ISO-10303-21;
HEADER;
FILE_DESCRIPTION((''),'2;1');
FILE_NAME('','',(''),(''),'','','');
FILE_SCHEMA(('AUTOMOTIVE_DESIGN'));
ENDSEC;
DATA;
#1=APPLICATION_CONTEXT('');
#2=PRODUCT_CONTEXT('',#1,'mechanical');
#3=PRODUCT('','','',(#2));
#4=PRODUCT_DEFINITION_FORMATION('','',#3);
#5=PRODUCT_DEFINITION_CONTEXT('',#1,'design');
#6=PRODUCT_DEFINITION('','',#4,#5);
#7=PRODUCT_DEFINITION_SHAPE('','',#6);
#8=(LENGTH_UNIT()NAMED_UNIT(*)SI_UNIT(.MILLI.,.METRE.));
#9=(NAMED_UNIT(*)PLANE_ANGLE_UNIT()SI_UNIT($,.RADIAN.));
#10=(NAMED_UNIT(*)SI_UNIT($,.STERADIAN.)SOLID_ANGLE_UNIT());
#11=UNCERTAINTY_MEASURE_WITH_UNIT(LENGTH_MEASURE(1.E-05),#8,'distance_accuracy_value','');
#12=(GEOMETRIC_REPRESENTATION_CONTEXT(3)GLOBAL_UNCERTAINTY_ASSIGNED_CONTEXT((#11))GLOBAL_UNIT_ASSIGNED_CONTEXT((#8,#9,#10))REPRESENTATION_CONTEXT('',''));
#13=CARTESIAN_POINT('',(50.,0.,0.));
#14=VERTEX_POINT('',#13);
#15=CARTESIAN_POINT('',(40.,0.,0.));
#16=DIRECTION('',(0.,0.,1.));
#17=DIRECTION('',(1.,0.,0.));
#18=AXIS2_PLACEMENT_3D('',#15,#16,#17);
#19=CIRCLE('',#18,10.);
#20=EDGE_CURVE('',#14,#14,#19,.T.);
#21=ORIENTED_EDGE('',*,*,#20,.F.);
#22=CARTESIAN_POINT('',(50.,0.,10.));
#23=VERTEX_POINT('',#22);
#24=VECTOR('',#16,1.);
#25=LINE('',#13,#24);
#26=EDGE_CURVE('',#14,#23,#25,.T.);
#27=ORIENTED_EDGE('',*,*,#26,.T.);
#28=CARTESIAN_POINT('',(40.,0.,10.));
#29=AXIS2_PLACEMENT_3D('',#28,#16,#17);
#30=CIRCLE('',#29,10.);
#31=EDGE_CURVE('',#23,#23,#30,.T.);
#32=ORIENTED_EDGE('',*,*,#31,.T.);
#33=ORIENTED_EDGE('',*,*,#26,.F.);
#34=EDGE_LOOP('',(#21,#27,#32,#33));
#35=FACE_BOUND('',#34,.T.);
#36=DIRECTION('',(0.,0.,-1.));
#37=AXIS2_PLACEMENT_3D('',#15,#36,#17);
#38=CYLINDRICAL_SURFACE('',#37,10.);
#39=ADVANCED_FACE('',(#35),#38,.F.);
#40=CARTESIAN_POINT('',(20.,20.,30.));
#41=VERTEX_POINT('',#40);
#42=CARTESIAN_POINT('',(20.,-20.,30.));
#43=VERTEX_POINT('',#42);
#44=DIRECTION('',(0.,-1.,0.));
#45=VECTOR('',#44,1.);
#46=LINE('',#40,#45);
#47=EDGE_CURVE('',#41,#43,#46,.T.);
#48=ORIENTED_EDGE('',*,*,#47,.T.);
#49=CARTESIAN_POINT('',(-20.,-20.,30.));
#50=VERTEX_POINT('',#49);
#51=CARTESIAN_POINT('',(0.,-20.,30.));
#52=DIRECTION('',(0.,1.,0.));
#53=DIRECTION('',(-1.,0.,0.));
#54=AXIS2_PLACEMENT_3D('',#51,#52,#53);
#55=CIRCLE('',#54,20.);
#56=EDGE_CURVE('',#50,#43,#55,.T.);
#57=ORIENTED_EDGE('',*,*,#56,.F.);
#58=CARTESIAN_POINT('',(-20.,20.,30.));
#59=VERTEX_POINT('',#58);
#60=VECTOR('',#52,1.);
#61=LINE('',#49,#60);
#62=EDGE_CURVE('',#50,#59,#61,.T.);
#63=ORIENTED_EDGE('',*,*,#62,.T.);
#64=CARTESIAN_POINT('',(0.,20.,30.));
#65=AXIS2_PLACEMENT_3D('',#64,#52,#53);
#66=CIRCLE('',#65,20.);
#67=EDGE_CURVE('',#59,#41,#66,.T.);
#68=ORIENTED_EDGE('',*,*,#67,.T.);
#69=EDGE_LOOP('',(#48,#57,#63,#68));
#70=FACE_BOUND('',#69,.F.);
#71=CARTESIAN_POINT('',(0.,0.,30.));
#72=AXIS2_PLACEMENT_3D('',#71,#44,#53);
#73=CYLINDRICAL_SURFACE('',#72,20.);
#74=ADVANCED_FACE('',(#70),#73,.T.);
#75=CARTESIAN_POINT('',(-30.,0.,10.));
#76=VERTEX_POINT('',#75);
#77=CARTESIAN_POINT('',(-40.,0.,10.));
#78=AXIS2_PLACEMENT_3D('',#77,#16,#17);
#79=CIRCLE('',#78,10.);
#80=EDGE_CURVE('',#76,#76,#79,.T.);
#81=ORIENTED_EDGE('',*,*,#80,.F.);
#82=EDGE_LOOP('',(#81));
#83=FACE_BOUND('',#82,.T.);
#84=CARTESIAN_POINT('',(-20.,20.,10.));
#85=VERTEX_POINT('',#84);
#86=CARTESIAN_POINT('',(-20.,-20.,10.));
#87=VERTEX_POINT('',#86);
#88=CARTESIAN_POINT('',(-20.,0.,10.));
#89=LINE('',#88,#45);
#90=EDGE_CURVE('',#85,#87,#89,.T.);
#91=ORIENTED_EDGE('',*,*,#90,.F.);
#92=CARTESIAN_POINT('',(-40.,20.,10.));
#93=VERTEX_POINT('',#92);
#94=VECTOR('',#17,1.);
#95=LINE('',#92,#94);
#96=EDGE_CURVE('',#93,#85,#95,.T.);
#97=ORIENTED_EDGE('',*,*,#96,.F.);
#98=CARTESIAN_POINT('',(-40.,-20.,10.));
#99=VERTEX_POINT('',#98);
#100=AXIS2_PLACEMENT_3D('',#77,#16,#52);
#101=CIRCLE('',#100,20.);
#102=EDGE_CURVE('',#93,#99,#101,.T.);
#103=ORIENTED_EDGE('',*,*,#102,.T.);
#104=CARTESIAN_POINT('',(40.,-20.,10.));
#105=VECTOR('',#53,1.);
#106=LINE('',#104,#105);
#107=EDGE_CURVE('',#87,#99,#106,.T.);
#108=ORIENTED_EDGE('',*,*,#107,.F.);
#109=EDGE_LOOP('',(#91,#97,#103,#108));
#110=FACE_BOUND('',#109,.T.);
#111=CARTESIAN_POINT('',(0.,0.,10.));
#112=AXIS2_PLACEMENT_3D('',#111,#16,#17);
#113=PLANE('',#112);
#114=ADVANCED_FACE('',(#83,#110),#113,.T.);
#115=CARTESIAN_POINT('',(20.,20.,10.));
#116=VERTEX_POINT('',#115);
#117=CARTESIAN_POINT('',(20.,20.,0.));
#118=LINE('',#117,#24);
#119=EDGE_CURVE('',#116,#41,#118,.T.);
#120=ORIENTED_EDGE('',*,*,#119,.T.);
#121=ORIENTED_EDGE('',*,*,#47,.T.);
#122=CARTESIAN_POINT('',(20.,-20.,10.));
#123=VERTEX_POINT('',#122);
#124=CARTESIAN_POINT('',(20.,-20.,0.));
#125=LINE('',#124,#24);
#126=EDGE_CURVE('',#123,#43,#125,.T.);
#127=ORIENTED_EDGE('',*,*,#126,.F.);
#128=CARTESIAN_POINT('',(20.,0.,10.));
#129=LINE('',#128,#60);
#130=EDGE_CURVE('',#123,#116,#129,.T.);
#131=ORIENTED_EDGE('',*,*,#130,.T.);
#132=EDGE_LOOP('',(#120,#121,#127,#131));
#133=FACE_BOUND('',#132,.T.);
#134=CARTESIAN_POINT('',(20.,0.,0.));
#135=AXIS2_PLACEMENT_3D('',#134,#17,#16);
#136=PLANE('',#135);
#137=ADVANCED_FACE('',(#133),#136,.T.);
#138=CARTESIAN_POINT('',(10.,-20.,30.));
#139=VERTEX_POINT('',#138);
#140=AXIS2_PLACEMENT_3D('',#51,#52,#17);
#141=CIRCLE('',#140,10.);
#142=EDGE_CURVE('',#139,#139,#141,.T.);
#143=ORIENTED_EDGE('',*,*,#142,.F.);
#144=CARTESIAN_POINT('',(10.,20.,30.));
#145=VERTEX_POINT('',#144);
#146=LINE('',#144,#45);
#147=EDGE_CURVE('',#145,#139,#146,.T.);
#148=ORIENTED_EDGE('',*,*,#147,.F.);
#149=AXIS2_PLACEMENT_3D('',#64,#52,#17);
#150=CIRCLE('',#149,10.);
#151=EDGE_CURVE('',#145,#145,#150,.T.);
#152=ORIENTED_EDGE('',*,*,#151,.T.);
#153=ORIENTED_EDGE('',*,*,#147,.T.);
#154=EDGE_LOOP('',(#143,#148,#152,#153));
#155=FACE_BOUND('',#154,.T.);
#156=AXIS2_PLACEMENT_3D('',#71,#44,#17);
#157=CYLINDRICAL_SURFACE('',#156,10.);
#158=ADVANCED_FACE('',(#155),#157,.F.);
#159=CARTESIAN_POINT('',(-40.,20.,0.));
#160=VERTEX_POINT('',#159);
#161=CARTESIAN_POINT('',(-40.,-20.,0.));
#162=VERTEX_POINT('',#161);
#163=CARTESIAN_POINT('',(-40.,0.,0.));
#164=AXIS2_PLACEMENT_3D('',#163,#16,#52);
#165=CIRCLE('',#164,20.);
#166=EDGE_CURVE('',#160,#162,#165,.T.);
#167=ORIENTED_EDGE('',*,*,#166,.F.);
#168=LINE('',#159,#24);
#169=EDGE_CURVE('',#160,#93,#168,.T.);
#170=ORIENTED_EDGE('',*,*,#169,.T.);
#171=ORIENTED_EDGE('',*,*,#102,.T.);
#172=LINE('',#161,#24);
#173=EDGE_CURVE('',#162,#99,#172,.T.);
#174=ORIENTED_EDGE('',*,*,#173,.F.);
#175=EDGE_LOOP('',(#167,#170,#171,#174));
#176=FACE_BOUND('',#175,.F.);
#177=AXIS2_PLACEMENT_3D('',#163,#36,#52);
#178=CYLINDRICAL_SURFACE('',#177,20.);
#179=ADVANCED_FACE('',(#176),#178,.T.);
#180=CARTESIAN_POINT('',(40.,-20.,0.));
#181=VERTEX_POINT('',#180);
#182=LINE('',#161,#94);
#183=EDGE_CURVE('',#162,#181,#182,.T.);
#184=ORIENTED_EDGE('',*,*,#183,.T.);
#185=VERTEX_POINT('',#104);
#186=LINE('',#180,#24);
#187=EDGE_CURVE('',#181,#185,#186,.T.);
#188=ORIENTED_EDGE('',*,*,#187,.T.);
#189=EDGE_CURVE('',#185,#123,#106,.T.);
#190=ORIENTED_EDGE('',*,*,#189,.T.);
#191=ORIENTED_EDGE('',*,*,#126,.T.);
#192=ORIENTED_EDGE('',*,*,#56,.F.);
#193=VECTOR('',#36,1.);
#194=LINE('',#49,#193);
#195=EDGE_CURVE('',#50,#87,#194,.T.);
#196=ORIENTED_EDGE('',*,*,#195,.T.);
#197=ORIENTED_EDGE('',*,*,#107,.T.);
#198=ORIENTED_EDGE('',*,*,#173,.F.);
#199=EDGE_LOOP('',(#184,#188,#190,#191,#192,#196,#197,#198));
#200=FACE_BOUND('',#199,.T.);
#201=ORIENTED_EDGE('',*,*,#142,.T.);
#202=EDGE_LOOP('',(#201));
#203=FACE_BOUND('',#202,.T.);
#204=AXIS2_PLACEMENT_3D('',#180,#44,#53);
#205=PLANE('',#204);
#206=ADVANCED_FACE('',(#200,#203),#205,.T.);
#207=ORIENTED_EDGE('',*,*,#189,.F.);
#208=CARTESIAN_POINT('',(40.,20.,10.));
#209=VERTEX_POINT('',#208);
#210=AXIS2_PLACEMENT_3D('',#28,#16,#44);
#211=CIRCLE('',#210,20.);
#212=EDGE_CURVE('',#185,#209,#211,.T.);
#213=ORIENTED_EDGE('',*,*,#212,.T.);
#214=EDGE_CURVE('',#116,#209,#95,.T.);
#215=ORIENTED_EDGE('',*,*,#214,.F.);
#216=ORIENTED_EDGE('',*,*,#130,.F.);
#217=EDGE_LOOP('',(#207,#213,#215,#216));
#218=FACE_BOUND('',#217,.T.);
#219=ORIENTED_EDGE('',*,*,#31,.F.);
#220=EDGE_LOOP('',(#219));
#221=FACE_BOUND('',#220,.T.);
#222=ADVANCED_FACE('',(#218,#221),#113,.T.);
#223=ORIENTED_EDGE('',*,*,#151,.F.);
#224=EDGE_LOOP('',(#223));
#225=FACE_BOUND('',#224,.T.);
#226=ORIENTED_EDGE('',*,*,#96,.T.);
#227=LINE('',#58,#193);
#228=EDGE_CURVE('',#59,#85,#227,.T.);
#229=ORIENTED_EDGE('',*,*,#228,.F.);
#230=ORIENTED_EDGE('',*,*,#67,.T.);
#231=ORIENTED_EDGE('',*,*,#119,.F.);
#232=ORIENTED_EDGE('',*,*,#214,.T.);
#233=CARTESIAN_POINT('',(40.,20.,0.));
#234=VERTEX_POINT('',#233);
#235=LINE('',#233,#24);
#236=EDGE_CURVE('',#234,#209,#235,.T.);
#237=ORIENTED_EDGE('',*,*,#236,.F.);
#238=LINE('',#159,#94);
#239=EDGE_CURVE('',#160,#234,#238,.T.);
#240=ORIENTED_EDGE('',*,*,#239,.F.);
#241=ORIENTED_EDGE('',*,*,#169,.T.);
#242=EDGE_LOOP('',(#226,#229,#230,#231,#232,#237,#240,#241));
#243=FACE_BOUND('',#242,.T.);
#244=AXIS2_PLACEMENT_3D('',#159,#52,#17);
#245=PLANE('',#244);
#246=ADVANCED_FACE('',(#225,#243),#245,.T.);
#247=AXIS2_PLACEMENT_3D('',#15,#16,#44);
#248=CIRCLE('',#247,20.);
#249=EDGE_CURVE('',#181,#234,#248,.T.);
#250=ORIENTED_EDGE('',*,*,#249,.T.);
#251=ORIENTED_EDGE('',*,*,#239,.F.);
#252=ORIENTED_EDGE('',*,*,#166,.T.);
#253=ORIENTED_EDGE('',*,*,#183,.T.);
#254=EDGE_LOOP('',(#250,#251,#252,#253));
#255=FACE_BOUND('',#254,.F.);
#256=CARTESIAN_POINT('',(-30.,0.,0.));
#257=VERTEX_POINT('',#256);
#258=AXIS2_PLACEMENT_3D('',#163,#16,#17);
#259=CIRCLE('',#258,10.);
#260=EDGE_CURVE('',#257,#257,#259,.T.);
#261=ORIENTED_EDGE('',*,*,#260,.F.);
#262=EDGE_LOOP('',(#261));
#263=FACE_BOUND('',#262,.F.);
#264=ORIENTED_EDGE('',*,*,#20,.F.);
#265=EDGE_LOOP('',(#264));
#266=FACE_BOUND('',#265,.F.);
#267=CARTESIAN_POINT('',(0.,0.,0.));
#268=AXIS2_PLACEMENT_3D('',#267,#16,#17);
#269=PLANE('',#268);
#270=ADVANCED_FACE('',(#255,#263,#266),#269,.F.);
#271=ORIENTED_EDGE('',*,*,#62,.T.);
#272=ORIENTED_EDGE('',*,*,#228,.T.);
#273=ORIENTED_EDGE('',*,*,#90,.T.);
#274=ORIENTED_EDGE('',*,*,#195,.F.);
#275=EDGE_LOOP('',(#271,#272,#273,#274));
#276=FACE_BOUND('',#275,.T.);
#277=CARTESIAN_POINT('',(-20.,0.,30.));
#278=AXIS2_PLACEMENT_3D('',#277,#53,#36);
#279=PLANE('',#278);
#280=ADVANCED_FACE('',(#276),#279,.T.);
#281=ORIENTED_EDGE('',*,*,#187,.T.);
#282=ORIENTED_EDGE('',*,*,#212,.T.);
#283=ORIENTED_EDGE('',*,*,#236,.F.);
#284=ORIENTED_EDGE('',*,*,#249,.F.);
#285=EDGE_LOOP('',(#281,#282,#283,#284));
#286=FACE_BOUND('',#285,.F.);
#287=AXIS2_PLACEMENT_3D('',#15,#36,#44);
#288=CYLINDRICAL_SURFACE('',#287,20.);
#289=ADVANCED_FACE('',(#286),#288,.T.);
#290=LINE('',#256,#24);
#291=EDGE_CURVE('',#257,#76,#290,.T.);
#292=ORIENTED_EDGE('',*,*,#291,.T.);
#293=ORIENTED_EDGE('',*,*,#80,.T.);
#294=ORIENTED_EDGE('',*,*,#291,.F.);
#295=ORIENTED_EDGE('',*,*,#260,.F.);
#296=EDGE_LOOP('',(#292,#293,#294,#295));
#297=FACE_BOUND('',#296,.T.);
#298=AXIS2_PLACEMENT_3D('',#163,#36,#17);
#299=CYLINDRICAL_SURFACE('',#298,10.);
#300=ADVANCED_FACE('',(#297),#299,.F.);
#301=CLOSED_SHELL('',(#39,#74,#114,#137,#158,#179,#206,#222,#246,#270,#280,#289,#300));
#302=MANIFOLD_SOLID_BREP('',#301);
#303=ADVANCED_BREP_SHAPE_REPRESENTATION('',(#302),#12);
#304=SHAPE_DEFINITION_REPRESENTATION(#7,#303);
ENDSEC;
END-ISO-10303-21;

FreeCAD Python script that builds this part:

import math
import FreeCAD as App
import Part
import Sketcher

V = App.Vector
Q = App.Units.Quantity

doc = App.newDocument("Part")
body = doc.addObject("PartDesign::Body", "Body")

# Sketch on XY plane
sketch1 = body.newObject("Sketcher::SketchObject", "Sketch")
sketch1.AttachmentSupport = (doc.getObject("XY_Plane"), [""])
sketch1.MapMode = "FlatFace"
sketch1.addGeometry(Part.LineSegment(V(-40, -20, 0), V(40, -20, 0)), False)
sketch1.addGeometry(Part.ArcOfCircle(Part.Circle(V(40, 0, 0), V(0, 0, 1), 20), math.radians(-90), math.radians(90)), False)
sketch1.addGeometry(Part.LineSegment(V(40, 20, 0), V(-40, 20, 0)), False)
sketch1.addGeometry(Part.ArcOfCircle(Part.Circle(V(-40, 0, 0), V(0, 0, 1), 20), math.radians(90), math.radians(270)), False)
sketch1.addGeometry(Part.Circle(V(-40, 0, 0), V(0, 0, 1), 10), False)
sketch1.addGeometry(Part.Circle(V(40, 0, 0), V(0, 0, 1), 10), False)
sketch1.addConstraint(Sketcher.Constraint("Tangent", 0, 2, 1, 1))
sketch1.addConstraint(Sketcher.Constraint("Tangent", 1, 2, 2, 1))
sketch1.addConstraint(Sketcher.Constraint("Tangent", 2, 2, 3, 1))
sketch1.addConstraint(Sketcher.Constraint("Tangent", 3, 2, 0, 1))
sketch1.addConstraint(Sketcher.Constraint("Horizontal", 0))
sketch1.addConstraint(Sketcher.Constraint("Horizontal", 2))
sketch1.addConstraint(Sketcher.Constraint("Coincident", 4, 3, 3, 3))
sketch1.addConstraint(Sketcher.Constraint("Coincident", 5, 3, 1, 3))
sketch1.addConstraint(Sketcher.Constraint("Equal", 4, 5))
sketch1.addConstraint(Sketcher.Constraint("Symmetric", 1, 3, 3, 3, -1, 1))
sketch1.addConstraint(Sketcher.Constraint("Diameter", 4, Q("20 mm")))
sketch1.addConstraint(Sketcher.Constraint("Radius", 1, Q("20 mm")))
sketch1.addConstraint(Sketcher.Constraint("DistanceX", 0, 1, 0, 2, Q("80 mm")))
pad1 = body.newObject("PartDesign::Pad", "Pad")
pad1.Profile = sketch1
pad1.Length = 10

# Sketch on XZ plane
sketch2 = body.newObject("Sketcher::SketchObject", "Sketch001")
sketch2.AttachmentSupport = (doc.getObject("XZ_Plane"), [""])
sketch2.MapMode = "FlatFace"
sketch2.addGeometry(Part.LineSegment(V(20, 0, 0), V(-20, 0, 0)), False)
sketch2.addGeometry(Part.LineSegment(V(-20, 0, 0), V(-20, 30, 0)), False)
sketch2.addGeometry(Part.ArcOfCircle(Part.Circle(V(0, 30, 0), V(0, 0, 1), 20), math.radians(0), math.radians(180)), False)
sketch2.addGeometry(Part.LineSegment(V(20, 30, 0), V(20, 0, 0)), False)
sketch2.addGeometry(Part.Circle(V(0, 30, 0), V(0, 0, 1), 10), False)
sketch2.addConstraint(Sketcher.Constraint("Coincident", 0, 2, 1, 1))
sketch2.addConstraint(Sketcher.Constraint("Tangent", 1, 2, 2, 2))
sketch2.addConstraint(Sketcher.Constraint("Tangent", 2, 1, 3, 1))
sketch2.addConstraint(Sketcher.Constraint("Coincident", 3, 2, 0, 1))
sketch2.addConstraint(Sketcher.Constraint("Horizontal", 0))
sketch2.addConstraint(Sketcher.Constraint("Vertical", 1))
sketch2.addConstraint(Sketcher.Constraint("Vertical", 3))
sketch2.addConstraint(Sketcher.Constraint("Coincident", 4, 3, 2, 3))
sketch2.addConstraint(Sketcher.Constraint("Symmetric", 0, 2, 3, 2, -1, 1))
sketch2.addConstraint(Sketcher.Constraint("Diameter", 4, Q("20 mm")))
sketch2.addConstraint(Sketcher.Constraint("Radius", 2, Q("20 mm")))
sketch2.addConstraint(Sketcher.Constraint("DistanceY", 1, 1, 1, 2, Q("30 mm")))
pad2 = body.newObject("PartDesign::Pad", "Pad001")
pad2.Profile = sketch2
pad2.Length = 40
pad2.Midplane = True

doc.recompute()
